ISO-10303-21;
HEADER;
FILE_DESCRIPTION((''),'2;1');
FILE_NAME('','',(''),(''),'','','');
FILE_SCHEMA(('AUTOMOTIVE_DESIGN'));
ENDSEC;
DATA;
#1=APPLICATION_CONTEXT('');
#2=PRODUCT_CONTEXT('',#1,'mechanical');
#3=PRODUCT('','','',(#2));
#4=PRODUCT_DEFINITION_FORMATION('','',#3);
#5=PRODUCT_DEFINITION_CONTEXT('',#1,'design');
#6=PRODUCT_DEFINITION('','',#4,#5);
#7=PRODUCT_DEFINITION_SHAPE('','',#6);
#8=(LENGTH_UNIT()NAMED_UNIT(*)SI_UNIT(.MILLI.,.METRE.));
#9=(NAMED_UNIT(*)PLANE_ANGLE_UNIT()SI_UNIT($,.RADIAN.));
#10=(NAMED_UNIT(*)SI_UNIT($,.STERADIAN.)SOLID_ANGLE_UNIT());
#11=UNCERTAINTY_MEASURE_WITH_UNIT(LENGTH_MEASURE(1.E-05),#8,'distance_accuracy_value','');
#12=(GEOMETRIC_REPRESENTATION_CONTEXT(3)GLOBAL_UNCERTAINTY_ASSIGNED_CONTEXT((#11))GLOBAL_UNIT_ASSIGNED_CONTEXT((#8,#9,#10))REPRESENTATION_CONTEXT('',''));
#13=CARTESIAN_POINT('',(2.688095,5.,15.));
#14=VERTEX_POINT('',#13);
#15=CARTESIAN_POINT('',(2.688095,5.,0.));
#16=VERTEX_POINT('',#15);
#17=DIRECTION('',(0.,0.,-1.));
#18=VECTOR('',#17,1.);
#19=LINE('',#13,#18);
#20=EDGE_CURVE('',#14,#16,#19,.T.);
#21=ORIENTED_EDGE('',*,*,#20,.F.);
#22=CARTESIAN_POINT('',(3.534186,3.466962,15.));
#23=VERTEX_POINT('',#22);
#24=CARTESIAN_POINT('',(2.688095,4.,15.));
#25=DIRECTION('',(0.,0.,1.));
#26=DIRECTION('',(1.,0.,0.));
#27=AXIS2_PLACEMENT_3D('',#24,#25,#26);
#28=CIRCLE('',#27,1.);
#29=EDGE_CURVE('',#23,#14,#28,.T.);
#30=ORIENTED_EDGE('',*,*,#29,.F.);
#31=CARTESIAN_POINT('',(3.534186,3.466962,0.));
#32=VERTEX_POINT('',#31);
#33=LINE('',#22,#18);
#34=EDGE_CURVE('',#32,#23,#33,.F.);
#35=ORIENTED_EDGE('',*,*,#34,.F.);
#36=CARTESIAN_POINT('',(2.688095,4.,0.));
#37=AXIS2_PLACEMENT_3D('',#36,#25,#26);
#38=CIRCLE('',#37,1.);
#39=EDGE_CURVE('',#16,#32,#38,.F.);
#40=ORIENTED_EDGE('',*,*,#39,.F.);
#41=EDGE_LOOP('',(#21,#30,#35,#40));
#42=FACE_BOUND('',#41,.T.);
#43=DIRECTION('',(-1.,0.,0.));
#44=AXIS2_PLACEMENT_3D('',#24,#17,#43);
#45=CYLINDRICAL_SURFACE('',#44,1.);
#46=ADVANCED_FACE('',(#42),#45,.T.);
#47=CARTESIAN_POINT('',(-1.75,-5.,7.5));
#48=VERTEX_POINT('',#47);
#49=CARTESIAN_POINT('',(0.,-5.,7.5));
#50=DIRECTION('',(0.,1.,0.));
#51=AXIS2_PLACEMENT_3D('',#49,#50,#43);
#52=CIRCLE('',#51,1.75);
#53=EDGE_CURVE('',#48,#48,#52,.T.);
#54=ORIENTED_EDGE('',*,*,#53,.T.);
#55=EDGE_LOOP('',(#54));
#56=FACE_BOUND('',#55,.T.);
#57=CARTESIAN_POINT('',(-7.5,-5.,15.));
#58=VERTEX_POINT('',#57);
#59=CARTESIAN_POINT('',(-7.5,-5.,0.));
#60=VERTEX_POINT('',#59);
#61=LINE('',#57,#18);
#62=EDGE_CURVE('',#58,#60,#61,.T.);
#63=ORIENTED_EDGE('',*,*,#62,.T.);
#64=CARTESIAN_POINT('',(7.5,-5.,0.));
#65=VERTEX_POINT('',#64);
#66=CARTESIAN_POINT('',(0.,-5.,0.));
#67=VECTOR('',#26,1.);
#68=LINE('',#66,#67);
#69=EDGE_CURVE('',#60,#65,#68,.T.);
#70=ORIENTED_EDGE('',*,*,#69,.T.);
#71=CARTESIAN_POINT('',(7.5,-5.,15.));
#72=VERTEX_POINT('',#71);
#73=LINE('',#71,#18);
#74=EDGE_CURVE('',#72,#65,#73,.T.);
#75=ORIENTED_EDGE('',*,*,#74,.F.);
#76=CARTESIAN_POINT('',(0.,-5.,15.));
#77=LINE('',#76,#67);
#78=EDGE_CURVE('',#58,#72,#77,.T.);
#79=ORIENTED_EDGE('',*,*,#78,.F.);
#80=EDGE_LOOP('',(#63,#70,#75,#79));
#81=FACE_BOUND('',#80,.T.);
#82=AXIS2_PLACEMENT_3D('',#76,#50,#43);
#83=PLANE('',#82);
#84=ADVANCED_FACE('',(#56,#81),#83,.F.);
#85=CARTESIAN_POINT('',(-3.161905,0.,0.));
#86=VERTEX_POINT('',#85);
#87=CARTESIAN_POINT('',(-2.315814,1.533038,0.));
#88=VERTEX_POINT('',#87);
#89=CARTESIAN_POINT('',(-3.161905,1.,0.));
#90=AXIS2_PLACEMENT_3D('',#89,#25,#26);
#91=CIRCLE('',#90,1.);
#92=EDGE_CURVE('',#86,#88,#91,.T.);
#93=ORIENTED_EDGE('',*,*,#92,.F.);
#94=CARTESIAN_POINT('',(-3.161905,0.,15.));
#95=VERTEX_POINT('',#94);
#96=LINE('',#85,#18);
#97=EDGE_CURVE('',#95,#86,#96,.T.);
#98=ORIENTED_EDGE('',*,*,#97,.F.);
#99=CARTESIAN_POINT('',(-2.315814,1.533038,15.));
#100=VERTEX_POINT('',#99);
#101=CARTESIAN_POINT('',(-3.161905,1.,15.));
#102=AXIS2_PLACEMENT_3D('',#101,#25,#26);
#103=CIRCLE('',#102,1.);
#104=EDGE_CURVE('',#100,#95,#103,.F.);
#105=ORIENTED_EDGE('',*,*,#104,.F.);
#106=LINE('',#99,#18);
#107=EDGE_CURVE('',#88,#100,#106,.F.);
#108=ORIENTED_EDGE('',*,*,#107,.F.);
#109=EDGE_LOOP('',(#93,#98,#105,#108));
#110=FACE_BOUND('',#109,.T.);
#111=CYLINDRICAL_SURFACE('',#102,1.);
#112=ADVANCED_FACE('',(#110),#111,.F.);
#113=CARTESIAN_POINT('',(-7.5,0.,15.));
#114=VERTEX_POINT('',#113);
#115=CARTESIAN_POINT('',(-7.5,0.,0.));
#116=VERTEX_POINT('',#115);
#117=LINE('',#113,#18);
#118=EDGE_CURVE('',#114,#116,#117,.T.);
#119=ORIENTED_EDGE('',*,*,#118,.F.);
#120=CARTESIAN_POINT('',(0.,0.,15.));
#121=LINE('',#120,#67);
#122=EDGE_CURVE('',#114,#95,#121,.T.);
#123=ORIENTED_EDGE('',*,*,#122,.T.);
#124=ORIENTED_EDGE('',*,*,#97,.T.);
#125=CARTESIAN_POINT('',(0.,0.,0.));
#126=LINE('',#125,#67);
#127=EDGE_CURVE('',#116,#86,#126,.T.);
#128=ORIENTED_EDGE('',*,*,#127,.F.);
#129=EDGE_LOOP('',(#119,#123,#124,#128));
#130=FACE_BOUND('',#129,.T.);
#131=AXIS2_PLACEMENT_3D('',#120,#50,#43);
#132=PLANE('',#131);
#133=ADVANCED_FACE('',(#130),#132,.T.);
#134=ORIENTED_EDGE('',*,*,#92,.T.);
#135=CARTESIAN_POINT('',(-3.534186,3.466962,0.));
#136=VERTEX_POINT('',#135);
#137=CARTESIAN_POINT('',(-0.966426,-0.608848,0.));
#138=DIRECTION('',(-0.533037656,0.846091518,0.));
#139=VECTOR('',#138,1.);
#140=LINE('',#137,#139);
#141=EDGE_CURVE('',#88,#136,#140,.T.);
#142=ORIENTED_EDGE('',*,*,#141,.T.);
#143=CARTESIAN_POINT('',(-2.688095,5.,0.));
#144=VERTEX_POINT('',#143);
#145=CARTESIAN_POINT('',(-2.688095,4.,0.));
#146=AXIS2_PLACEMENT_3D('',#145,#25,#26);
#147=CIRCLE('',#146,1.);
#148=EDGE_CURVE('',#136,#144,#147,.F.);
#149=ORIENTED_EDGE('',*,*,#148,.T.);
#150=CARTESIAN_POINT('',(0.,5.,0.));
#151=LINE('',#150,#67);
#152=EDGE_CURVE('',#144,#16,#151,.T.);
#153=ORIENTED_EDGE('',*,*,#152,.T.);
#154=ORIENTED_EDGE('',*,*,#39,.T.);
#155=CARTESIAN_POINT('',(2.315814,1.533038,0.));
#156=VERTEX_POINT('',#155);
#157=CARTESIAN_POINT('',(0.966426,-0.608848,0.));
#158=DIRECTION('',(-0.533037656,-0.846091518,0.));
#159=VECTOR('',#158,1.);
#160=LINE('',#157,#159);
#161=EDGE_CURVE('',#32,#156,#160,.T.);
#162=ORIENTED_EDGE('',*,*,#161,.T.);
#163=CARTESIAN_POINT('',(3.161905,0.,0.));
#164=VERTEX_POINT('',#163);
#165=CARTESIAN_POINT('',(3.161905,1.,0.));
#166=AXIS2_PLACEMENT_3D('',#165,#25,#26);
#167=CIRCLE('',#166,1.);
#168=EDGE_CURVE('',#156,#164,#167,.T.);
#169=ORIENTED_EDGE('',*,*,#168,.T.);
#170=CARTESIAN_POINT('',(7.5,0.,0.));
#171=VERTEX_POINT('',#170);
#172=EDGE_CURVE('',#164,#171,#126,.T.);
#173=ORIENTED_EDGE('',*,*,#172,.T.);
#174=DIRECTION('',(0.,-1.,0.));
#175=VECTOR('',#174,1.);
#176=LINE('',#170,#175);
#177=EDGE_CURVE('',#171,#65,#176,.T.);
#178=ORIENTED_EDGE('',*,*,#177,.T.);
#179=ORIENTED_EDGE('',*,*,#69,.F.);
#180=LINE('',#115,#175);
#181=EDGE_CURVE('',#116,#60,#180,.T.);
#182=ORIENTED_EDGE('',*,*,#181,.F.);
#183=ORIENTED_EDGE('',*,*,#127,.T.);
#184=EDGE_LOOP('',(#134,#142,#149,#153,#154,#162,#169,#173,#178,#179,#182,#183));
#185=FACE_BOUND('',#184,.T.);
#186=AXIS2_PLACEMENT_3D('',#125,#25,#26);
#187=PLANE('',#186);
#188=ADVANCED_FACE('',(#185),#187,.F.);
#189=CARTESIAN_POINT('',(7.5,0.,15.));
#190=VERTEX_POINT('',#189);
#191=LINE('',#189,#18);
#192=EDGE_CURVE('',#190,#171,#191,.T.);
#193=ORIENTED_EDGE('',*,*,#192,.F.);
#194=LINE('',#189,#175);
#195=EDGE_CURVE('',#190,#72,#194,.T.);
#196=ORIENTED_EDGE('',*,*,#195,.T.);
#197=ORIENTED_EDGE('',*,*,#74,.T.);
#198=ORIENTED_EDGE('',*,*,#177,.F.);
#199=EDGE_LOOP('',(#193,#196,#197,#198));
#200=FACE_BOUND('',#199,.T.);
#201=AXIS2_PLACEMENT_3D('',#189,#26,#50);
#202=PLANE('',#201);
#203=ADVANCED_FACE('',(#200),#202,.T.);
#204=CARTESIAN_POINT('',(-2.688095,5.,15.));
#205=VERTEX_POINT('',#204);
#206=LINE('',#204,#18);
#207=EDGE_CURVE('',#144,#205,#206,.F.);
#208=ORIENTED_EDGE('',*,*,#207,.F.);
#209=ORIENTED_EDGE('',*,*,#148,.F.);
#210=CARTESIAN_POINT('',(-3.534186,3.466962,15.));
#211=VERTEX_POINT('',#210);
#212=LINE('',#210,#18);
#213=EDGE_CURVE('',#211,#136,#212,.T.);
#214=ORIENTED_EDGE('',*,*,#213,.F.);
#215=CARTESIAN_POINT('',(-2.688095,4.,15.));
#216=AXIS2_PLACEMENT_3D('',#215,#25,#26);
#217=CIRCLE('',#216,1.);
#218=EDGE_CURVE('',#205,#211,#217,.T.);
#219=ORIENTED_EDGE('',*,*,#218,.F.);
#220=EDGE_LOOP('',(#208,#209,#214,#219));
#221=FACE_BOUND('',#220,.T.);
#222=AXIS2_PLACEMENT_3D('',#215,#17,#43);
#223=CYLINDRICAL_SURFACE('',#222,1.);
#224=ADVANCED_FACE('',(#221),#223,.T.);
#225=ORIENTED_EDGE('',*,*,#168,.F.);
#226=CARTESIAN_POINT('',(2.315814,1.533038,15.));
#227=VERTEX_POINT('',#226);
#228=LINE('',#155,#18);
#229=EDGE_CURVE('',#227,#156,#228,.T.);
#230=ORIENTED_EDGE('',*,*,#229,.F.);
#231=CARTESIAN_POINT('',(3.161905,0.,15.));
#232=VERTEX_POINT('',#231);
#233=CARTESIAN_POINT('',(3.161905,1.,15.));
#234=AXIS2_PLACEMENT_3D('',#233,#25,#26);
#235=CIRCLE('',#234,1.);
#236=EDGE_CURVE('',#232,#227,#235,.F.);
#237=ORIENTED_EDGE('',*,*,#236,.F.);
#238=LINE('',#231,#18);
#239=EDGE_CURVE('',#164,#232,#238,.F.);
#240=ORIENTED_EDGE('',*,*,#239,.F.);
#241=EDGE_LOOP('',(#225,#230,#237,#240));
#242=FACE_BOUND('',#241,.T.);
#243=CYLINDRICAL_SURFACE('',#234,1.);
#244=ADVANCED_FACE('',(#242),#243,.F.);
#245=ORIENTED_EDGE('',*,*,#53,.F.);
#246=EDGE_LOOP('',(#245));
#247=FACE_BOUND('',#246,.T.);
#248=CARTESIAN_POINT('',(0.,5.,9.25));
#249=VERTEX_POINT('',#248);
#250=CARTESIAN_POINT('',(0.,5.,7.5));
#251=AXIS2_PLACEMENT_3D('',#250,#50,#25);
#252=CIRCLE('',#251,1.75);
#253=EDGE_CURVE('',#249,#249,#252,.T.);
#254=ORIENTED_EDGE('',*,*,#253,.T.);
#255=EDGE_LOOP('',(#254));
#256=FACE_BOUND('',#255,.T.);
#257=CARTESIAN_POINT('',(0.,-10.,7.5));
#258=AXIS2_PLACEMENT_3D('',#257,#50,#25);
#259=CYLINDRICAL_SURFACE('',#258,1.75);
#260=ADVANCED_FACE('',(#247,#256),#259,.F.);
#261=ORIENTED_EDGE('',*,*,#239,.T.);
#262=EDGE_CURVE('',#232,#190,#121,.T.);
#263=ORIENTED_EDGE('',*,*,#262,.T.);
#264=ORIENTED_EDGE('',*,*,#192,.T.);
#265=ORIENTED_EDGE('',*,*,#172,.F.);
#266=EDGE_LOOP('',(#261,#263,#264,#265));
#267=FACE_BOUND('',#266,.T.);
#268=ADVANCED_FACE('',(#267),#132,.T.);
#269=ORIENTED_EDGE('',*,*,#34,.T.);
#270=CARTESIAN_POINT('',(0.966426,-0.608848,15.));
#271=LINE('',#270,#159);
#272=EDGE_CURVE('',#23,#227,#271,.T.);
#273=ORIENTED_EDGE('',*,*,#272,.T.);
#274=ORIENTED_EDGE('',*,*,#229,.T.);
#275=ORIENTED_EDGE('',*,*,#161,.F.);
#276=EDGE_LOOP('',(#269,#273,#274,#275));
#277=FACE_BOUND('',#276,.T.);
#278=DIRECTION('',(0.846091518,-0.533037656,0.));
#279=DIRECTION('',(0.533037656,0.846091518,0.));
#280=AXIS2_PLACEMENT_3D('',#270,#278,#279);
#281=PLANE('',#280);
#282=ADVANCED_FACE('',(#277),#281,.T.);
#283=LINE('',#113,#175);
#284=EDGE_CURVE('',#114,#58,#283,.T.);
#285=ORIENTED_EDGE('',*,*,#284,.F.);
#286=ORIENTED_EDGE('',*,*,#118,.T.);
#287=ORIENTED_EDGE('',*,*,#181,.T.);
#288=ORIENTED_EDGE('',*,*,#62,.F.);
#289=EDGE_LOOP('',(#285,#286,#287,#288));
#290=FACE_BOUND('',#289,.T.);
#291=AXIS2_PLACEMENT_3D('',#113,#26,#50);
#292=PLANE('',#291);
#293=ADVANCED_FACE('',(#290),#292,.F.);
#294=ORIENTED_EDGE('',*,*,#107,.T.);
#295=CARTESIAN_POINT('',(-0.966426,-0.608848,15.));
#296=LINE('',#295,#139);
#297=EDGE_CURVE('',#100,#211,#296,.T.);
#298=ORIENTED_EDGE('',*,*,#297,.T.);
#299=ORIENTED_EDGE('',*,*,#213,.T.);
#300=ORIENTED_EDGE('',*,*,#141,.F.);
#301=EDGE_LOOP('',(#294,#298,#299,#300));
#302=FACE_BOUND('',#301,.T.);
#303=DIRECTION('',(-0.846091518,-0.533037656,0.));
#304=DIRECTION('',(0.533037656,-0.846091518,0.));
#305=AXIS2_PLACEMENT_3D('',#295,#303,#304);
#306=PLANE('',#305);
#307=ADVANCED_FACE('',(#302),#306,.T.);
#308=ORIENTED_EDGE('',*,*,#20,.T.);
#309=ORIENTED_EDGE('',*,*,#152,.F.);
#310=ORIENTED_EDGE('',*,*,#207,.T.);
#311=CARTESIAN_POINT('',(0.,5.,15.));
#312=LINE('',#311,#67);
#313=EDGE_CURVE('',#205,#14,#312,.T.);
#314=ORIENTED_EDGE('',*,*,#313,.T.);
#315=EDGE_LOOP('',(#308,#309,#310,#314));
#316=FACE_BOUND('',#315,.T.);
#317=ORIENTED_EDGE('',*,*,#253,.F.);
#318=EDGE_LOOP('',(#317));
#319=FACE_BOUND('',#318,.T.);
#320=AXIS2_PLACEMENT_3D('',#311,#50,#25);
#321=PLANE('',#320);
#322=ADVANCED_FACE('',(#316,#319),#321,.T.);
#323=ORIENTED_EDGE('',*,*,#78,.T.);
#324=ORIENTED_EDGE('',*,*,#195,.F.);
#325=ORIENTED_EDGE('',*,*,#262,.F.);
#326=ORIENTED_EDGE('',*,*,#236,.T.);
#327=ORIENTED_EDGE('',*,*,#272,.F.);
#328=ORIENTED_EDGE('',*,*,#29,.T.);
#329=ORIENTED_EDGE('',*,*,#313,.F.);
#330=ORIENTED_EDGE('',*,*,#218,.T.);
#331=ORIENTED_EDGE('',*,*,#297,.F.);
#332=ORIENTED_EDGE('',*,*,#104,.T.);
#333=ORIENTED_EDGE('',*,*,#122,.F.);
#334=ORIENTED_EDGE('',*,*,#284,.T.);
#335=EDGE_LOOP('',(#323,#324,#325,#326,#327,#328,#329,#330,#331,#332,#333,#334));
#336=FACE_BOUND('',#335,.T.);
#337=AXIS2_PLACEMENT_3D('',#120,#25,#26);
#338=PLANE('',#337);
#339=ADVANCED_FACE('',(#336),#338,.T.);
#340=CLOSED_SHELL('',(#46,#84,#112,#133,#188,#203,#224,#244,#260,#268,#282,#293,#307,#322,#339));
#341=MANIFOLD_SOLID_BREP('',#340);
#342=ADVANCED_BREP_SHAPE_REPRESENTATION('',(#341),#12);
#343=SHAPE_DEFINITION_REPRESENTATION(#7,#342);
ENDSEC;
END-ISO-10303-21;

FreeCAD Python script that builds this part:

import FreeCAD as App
import Part
import Sketcher
from FreeCAD import Vector
Q = App.Units.Quantity


def edges_at(feature, points):
    """Names of the edges that pass closest to the given points."""
    edges = feature.Shape.Edges
    near = lambda p: min(range(len(edges)), key=lambda i: edges[i].distToShape(Part.Vertex(*p))[0])
    return sorted({f"Edge{near(p) + 1}" for p in points})


def add_polygon(sketch, points):
    """Adds a closed chain of lines whose ends are joined by coincident constraints."""
    first, n = sketch.GeometryCount, len(points)
    for a, b in zip(points, points[1:] + points[:1]):
        sketch.addGeometry(Part.LineSegment(App.Vector(*a, 0), App.Vector(*b, 0)), False)
    for i in range(n):
        sketch.addConstraint(Sketcher.Constraint("Coincident", first + i, 2, first + (i + 1) % n, 1))

doc = App.newDocument("Part")
body = doc.addObject("PartDesign::Body", "Body")

# Sketch on XY plane
sketch1 = body.newObject("Sketcher::SketchObject", "Sketch")
sketch1.AttachmentSupport = (doc.getObject("XY_Plane"), [""])
sketch1.MapMode = "FlatFace"
add_polygon(sketch1, [(-8, 0), (-8, -5), (8, -5), (8, 0), (1, 0), (4, 5), (-4, 5), (-1, 0)])  # lines 0-7
sketch1.addConstraint([
    Sketcher.Constraint("Vertical", 0),
    Sketcher.Constraint("Horizontal", 1),
    Sketcher.Constraint("Vertical", 2),
    Sketcher.Constraint("Horizontal", 3),
    Sketcher.Constraint("Horizontal", 5),
    Sketcher.Constraint("Horizontal", 7),
    Sketcher.Constraint("Symmetric", 3, 2, 6, 2, -1, 1),
    Sketcher.Constraint("Symmetric", 2, 2, 7, 2, -2),
    Sketcher.Constraint("Equal", 4, 6),
    Sketcher.Constraint("DistanceX", 1, 1, 1, 2, Q("15 mm")),
    Sketcher.Constraint("DistanceX", 5, 2, 5, 1, Q("9 mm")),
    Sketcher.Constraint("DistanceY", 0, 2, 0, 1, Q("5 mm")),
    Sketcher.Constraint("DistanceY", -1, 1, 4, 2, Q("5 mm")),
    Sketcher.Constraint("DistanceX", 3, 2, 3, 1, Q("6.15 mm")),
])
pad1 = body.newObject("PartDesign::Pad", "Pad")
pad1.Profile = sketch1
pad1.Length = 15
doc.recompute()

fillet = body.newObject("PartDesign::Fillet", "Fillet")
fillet.Base = (pad1, edges_at(pad1, [
    (-1.35, 0, 7.5),
    (-4.5, 5, 7.5),
    (4.5, 5, 7.5),
    (1.35, 0, 7.5),
]))
fillet.Radius = 1

# Sketch on XZ plane
sketch2 = body.newObject("Sketcher::SketchObject", "Sketch001")
sketch2.AttachmentSupport = (doc.getObject("XZ_Plane"), [""])
sketch2.MapMode = "FlatFace"
sketch2.AttachmentOffset = App.Placement(Vector(0, 0, -5), App.Rotation())
sketch2.addGeometry(Part.Circle(Vector(0, 7.5, 0), Vector(0, 0, 1), 1.8), False)
sketch2.addConstraint([
    Sketcher.Constraint("PointOnObject", 0, 3, -2),
    Sketcher.Constraint("Diameter", 0, Q("3.5 mm")),
    Sketcher.Constraint("DistanceY", -1, 1, 0, 3, Q("7.5 mm")),
])
pocket1 = body.newObject("PartDesign::Pocket", "Pocket")
pocket1.Profile = sketch2
pocket1.Length = 15
pocket1.Reversed = True

doc.recompute()
